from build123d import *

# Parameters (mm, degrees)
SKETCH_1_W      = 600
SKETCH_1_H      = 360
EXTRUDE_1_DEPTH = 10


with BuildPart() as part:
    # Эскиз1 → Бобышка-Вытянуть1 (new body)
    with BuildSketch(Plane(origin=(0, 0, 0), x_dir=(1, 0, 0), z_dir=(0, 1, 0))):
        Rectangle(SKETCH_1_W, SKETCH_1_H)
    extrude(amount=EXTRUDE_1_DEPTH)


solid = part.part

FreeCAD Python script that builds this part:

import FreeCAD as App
import Part
import Sketcher

V = App.Vector


def add_polygon(sketch, points):
    """Adds a closed chain of lines whose ends are joined by coincident constraints."""
    first, n = sketch.GeometryCount, len(points)
    for a, b in zip(points, points[1:] + points[:1]):
        sketch.addGeometry(Part.LineSegment(App.Vector(*a, 0), App.Vector(*b, 0)), False)
    for i in range(n):
        sketch.addConstraint(Sketcher.Constraint("Coincident", first + i, 2, first + (i + 1) % n, 1))

doc = App.newDocument("Part")
body = doc.addObject("PartDesign::Body", "Body")

sketch1 = body.newObject("Sketcher::SketchObject", "Sketch")
sketch1.AttachmentSupport = (doc.getObject("XZ_Plane"), [""])
sketch1.MapMode = "FlatFace"
add_polygon(sketch1, [(-300, -180), (-300, 180), (300, 180), (300, -180)])
sketch1.addConstraint([
    Sketcher.Constraint("Vertical", 0),
    Sketcher.Constraint("Horizontal", 1),
    Sketcher.Constraint("Vertical", 2),
    Sketcher.Constraint("Horizontal", 3),
    Sketcher.Constraint("Symmetric", 0, 2, 2, 2, -1, 1),
    Sketcher.Constraint("DistanceX", 1, 1, 1, 2, 600.0),
    Sketcher.Constraint("DistanceY", 0, 1, 0, 2, 360.0),
])
pad1 = body.newObject("PartDesign::Pad", "Pad")
pad1.Profile = sketch1
pad1.Length = 10
pad1.Reversed = True

doc.recompute()
